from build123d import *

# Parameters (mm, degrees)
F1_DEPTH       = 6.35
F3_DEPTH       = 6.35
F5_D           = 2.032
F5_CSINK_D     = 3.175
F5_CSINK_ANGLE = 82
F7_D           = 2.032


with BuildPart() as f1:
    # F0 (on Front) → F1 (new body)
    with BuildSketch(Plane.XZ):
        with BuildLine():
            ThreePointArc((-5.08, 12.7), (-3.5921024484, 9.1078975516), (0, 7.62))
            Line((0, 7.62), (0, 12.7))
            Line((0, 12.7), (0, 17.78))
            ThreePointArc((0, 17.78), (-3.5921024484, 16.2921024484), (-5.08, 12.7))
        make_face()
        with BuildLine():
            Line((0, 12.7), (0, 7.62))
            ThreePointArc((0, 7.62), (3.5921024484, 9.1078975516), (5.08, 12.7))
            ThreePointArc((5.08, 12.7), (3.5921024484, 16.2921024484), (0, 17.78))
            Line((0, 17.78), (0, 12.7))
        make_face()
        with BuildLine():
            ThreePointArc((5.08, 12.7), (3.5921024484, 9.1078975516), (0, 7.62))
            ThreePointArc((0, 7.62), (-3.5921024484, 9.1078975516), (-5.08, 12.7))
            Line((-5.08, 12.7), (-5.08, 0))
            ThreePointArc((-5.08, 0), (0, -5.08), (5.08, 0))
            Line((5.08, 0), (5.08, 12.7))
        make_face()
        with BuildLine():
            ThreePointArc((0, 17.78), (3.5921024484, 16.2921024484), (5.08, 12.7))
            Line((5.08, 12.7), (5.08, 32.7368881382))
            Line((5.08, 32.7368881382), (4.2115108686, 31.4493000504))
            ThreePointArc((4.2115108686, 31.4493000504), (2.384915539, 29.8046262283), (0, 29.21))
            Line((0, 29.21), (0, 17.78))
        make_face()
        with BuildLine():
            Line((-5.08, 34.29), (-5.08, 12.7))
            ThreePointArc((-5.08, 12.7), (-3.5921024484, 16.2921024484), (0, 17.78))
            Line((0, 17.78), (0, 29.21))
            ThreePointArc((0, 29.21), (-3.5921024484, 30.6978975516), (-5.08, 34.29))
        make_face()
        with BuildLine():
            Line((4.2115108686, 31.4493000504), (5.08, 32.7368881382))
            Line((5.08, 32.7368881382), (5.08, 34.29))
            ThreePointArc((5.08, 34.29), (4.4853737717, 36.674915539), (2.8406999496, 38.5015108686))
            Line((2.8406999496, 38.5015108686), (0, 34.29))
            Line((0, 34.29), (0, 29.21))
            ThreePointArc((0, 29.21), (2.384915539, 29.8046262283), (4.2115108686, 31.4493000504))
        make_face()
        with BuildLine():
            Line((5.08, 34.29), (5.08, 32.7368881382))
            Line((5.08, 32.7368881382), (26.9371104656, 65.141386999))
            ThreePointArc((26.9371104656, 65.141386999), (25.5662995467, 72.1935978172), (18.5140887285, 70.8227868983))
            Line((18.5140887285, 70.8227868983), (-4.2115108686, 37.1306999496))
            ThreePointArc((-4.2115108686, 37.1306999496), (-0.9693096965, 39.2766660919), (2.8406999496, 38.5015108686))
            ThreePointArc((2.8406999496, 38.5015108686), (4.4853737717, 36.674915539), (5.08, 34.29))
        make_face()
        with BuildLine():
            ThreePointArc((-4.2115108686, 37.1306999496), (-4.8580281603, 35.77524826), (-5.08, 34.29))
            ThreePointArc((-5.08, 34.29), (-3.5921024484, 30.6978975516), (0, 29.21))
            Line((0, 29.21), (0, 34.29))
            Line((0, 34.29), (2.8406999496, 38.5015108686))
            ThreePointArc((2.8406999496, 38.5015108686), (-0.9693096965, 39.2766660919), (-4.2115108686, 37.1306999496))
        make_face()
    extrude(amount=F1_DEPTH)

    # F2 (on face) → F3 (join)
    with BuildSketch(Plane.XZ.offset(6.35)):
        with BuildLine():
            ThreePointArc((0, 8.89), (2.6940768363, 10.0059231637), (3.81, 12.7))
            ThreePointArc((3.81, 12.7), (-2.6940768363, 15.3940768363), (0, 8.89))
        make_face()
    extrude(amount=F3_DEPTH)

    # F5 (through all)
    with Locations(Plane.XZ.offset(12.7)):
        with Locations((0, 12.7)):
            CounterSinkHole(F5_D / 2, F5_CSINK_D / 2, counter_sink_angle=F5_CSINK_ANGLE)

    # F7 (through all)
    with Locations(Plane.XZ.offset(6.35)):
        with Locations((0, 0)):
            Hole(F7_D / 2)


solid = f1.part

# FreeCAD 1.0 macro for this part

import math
import FreeCAD as App
import Part
import Sketcher
Q = App.Units.Quantity

doc = App.newDocument("Part")
body = doc.addObject("PartDesign::Body", "Body")

sketch1 = body.newObject("Sketcher::SketchObject", "Sketch")
sketch1.AttachmentSupport = (doc.getObject("XZ_Plane"), [""])
sketch1.MapMode = "FlatFace"
sketch1.addGeometry([
    Part.ArcOfCircle(Part.Circle(App.Vector(0, 0, 0), App.Vector(0, 0, 1), 5.1), math.radians(180), math.radians(360)),
    Part.LineSegment(App.Vector(5.1, 0, 0), App.Vector(5.1, 32.7, 0)),
    Part.LineSegment(App.Vector(5.1, 32.7, 0), App.Vector(26.9, 65.1, 0)),
    Part.ArcOfCircle(Part.Circle(App.Vector(22.7, 68, 0), App.Vector(0, 0, 1), 5.1), math.radians(-34), math.radians(146)),
    Part.LineSegment(App.Vector(18.5, 70.8, 0), App.Vector(-4.2, 37.1, 0)),
    Part.ArcOfCircle(Part.Circle(App.Vector(0, 34.3, 0), App.Vector(0, 0, 1), 5.1), math.radians(146), math.radians(180)),
    Part.LineSegment(App.Vector(-5.1, 34.3, 0), App.Vector(-5.1, 0, 0)),
], False)
sketch1.addConstraint([
    Sketcher.Constraint("Tangent", 0, 2, 1, 1),
    Sketcher.Constraint("Coincident", 1, 2, 2, 1),
    Sketcher.Constraint("Tangent", 2, 2, 3, 1),
    Sketcher.Constraint("Tangent", 3, 2, 4, 1),
    Sketcher.Constraint("Tangent", 4, 2, 5, 1),
    Sketcher.Constraint("Tangent", 5, 2, 6, 1),
    Sketcher.Constraint("Tangent", 6, 2, 0, 1),
    Sketcher.Constraint("Vertical", 1),
    Sketcher.Constraint("Vertical", 6),
    Sketcher.Constraint("Coincident", 0, 3, -1, 1),
    Sketcher.Constraint("Equal", 0, 3),
    Sketcher.Constraint("Equal", 3, 5),
    Sketcher.Constraint("Parallel", 2, 4),
    Sketcher.Constraint("Radius", 0, Q("0.2 in")),
    Sketcher.Constraint("Angle", 2, Q("56 deg")),
    Sketcher.Constraint("Distance", 4, Q("1.6 in")),
    Sketcher.Constraint("DistanceY", 6, 2, 6, 1, Q("1.35 in")),
])
pad1 = body.newObject("PartDesign::Pad", "Pad")
pad1.Profile = sketch1
pad1.Length = Q("0.25 in")

sketch2 = body.newObject("Sketcher::SketchObject", "Sketch001")
sketch2.AttachmentSupport = (doc.getObject("XZ_Plane"), [""])
sketch2.MapMode = "FlatFace"
sketch2.AttachmentOffset = App.Placement(App.Vector(0, 0, 0.25 * 25.4), App.Rotation())
sketch2.addGeometry([
    Part.ArcOfCircle(Part.Circle(App.Vector(0, 12.7, 0), App.Vector(0, 0, 1), 3.8), math.radians(-90), math.radians(0)),
    Part.ArcOfCircle(Part.Circle(App.Vector(0, 12.7, 0), App.Vector(0, 0, 1), 3.8), math.radians(0), math.radians(270)),
], False)
sketch2.addConstraint([
    Sketcher.Constraint("Tangent", 0, 1, 1, 2),
    Sketcher.Constraint("Coincident", 1, 1, 0, 2),
    Sketcher.Constraint("PointOnObject", 0, 3, -2),
    Sketcher.Constraint("PointOnObject", 0, 1, -2),
    Sketcher.Constraint("Horizontal", 0, 3, 1, 1),
    Sketcher.Constraint("Radius", 0, Q("0.15 in")),
    Sketcher.Constraint("DistanceY", -1, 1, 0, 3, Q("0.5 in")),
])
pad2 = body.newObject("PartDesign::Pad", "Pad001")
pad2.Profile = sketch2
pad2.Length = Q("0.25 in")

sketch3 = body.newObject("Sketcher::SketchObject", "Sketch002")
sketch3.AttachmentSupport = (doc.getObject("XZ_Plane"), [""])
sketch3.MapMode = "FlatFace"
sketch3.AttachmentOffset = App.Placement(App.Vector(0, 0, 0.5 * 25.4), App.Rotation())
sketch3.addGeometry(Part.Circle(App.Vector(0, 12.7, 0), App.Vector(0, 0, 1), 1), False)
sketch3.addConstraint([
    Sketcher.Constraint("PointOnObject", 0, 3, -2),
    Sketcher.Constraint("Diameter", 0, Q("0.08 in")),
    Sketcher.Constraint("DistanceY", -1, 1, 0, 3, Q("0.5 in")),
])
doc.recompute()
hole = body.newObject("PartDesign::Hole", "Hole")
hole.Profile = sketch3
hole.ThreadType = "None"
hole.Diameter = Q("0.08 in")
hole.DepthType = "ThroughAll"
hole.HoleCutType = "Countersink"
hole.HoleCutDiameter = Q("0.125 in")
hole.HoleCutCountersinkAngle = 82

sketch4 = body.newObject("Sketcher::SketchObject", "Sketch003")
sketch4.AttachmentSupport = (doc.getObject("XZ_Plane"), [""])
sketch4.MapMode = "FlatFace"
sketch4.AttachmentOffset = App.Placement(App.Vector(0, 0, 0.25 * 25.4), App.Rotation())
sketch4.addGeometry(Part.Circle(App.Vector(0, 0, 0), App.Vector(0, 0, 1), 1), False)
sketch4.addConstraint([
    Sketcher.Constraint("Coincident", 0, 3, -1, 1),
    Sketcher.Constraint("Diameter", 0, Q("0.08 in")),
])
doc.recompute()
hole2 = body.newObject("PartDesign::Hole", "Hole001")
hole2.Profile = sketch4
hole2.ThreadType = "None"
hole2.Diameter = Q("0.08 in")
hole2.DepthType = "ThroughAll"

doc.recompute()
